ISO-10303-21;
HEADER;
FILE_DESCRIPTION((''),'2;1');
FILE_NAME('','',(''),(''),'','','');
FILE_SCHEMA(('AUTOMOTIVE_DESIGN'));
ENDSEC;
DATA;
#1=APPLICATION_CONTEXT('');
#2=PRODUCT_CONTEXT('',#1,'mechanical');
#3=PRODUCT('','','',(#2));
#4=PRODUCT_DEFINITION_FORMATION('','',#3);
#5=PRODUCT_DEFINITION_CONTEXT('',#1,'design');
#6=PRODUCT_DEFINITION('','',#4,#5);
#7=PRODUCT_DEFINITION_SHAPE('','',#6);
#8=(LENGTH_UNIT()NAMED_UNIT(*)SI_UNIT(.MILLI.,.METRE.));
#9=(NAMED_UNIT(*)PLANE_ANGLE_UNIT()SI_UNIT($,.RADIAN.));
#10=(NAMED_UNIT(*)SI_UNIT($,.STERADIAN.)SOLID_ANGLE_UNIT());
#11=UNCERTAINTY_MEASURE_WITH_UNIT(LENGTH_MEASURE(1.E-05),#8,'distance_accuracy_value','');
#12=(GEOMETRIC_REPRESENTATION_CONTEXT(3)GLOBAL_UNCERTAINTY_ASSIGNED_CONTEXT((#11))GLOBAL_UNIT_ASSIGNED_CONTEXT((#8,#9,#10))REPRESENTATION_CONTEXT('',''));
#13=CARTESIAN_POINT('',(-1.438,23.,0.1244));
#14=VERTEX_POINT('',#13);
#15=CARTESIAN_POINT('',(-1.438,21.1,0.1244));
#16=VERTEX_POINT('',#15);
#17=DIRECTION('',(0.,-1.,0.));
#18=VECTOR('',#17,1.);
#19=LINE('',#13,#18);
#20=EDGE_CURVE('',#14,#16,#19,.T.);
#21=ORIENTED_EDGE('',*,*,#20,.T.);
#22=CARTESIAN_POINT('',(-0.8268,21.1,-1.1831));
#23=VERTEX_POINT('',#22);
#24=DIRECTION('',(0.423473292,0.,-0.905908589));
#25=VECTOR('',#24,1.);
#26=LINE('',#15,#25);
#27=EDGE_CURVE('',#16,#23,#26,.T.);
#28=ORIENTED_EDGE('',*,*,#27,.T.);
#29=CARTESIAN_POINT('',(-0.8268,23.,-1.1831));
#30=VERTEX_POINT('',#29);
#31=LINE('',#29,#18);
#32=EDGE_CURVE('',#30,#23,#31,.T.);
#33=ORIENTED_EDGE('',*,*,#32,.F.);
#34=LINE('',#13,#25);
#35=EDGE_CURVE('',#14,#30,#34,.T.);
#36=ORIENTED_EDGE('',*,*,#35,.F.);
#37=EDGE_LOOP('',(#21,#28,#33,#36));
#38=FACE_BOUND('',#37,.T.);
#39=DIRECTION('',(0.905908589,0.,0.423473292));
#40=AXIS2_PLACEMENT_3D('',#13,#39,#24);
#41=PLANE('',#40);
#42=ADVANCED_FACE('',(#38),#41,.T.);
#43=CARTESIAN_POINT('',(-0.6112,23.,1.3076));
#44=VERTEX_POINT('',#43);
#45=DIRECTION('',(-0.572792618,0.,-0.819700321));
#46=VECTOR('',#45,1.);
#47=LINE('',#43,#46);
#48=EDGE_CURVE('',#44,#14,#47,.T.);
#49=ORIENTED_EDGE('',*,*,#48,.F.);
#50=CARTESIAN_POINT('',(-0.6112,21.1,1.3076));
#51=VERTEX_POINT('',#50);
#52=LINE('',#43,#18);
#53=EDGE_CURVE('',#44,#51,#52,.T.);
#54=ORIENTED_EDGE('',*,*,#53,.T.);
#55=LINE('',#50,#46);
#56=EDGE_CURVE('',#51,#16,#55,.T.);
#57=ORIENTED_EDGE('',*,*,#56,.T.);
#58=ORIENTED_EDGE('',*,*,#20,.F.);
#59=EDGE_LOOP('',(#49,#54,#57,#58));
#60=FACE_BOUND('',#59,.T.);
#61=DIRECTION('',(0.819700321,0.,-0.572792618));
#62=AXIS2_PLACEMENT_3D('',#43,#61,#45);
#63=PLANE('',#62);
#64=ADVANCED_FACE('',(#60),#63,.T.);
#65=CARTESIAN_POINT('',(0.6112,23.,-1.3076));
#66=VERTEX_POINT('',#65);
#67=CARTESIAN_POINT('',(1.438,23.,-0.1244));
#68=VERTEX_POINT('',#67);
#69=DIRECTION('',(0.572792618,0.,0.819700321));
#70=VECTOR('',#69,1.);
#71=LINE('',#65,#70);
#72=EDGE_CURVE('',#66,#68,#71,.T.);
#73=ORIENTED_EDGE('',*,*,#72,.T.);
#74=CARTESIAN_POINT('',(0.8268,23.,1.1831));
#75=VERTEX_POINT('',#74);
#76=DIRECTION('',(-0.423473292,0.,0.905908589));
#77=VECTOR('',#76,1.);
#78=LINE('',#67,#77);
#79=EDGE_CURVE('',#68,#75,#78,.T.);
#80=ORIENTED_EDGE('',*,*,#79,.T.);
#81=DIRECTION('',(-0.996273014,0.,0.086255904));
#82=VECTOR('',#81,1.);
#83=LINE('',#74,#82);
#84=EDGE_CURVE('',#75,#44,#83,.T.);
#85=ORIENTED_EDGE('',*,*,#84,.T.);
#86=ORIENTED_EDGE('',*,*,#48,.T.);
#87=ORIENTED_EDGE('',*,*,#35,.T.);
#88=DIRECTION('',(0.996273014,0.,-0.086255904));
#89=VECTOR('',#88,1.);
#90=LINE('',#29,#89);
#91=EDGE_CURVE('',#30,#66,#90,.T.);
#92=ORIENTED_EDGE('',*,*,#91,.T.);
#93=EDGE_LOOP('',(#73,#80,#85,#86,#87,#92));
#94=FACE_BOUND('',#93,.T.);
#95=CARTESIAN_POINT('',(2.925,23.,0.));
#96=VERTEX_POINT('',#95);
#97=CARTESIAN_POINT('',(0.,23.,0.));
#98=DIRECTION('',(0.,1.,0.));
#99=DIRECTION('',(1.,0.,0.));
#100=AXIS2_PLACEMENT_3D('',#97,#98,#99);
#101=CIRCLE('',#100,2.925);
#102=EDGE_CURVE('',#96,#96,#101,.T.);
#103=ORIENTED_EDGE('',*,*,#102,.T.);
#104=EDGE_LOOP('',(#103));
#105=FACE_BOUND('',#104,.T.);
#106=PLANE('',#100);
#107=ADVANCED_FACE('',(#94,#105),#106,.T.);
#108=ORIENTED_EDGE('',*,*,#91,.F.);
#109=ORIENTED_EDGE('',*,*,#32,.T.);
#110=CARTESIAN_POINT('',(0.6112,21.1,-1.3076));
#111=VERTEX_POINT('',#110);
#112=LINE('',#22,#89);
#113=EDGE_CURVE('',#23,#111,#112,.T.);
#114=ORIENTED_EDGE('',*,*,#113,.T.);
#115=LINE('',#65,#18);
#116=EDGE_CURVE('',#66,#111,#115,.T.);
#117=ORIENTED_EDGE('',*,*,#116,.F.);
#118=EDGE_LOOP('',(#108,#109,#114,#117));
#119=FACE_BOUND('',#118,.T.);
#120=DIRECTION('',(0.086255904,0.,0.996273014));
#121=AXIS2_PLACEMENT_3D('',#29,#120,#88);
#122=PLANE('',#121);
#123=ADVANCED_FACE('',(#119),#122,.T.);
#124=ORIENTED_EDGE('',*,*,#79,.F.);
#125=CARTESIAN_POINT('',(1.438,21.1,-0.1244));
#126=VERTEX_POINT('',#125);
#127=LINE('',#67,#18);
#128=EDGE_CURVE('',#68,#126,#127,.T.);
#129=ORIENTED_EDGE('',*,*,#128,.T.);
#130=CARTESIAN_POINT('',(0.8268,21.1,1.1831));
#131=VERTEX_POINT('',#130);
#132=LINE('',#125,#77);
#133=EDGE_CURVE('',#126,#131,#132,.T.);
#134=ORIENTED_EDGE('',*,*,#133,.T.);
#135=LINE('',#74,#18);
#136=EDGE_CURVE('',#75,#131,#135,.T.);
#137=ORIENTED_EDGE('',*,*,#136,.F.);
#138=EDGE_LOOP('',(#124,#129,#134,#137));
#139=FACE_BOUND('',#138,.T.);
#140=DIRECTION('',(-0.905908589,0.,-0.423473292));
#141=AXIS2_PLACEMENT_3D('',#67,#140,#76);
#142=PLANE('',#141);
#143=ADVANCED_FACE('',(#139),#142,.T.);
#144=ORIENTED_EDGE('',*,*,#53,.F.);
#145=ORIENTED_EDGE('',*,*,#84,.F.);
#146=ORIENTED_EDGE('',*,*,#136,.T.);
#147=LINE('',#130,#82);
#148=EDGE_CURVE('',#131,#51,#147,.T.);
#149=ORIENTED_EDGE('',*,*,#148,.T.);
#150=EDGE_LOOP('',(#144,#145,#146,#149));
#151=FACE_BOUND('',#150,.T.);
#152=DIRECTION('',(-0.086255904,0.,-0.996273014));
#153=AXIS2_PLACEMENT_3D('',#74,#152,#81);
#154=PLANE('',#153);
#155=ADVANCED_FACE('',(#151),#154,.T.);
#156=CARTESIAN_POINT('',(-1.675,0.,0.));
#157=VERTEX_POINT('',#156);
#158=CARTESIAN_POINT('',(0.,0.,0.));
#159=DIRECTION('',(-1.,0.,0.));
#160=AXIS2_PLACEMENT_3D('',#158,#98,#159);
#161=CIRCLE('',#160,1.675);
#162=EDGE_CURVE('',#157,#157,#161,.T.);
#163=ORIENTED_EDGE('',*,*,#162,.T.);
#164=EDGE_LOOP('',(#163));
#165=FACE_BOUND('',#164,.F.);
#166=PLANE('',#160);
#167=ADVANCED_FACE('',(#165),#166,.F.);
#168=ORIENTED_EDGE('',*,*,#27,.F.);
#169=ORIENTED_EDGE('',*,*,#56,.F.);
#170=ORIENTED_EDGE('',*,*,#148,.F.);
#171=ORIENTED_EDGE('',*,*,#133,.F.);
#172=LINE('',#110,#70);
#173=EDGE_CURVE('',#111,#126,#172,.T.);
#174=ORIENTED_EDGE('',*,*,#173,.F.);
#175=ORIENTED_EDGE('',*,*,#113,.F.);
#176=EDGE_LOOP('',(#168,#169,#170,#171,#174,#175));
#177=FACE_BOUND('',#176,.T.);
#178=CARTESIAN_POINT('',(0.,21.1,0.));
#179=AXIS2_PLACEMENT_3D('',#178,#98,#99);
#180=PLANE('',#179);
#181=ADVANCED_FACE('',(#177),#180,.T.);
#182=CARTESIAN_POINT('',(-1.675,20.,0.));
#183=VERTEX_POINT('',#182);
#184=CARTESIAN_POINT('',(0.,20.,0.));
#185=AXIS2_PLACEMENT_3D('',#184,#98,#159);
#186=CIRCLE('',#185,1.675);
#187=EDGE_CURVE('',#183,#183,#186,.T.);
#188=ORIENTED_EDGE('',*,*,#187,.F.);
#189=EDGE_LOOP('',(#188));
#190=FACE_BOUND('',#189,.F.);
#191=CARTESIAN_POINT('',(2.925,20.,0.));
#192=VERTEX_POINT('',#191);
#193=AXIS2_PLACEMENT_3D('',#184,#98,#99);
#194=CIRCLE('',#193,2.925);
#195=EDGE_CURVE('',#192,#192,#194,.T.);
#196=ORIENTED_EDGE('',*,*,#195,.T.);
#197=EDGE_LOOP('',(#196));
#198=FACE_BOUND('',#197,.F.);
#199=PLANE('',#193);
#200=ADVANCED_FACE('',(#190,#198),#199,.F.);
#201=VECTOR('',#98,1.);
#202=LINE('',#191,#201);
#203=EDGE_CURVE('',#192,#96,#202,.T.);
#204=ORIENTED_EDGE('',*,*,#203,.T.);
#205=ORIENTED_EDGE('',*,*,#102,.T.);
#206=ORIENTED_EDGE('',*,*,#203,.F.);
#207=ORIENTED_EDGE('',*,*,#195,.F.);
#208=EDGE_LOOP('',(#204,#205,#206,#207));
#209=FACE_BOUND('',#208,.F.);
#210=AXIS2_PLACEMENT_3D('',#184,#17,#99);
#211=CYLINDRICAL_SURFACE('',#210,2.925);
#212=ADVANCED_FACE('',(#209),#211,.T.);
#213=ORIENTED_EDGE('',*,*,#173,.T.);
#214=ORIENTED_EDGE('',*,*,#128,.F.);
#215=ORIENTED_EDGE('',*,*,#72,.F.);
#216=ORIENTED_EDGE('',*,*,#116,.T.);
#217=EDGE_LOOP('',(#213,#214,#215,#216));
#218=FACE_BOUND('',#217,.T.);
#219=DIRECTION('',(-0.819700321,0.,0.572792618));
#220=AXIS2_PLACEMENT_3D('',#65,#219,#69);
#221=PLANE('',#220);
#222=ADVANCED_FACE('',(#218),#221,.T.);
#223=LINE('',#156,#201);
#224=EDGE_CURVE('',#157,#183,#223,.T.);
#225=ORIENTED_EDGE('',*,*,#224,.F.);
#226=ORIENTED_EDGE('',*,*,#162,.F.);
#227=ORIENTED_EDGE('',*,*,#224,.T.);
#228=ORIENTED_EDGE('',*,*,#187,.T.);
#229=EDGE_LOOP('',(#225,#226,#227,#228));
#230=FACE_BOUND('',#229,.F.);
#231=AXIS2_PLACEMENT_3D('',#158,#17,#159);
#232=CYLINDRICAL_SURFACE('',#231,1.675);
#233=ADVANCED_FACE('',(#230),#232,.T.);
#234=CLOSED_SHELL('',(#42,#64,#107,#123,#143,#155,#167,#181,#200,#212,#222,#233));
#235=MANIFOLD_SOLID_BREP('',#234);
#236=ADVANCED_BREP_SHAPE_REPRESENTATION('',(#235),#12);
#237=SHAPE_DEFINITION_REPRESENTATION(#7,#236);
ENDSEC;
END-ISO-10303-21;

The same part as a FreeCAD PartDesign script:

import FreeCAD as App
import Part
import Sketcher

V = App.Vector
Q = App.Units.Quantity

doc = App.newDocument("Part")
body = doc.addObject("PartDesign::Body", "Body")

# Sketch on XZ plane
sketch1 = body.newObject("Sketcher::SketchObject", "Sketch")
sketch1.AttachmentSupport = (doc.getObject("XZ_Plane"), [""])
sketch1.MapMode = "FlatFace"
sketch1.addGeometry(Part.Circle(V(0, 0, 0), V(0, 0, 1), 1.7), False)
sketch1.addConstraint([
    Sketcher.Constraint("Coincident", 0, 3, -1, 1),
    Sketcher.Constraint("Diameter", 0, Q("3.35 mm")),
])
pad1 = body.newObject("PartDesign::Pad", "Pad")
pad1.Profile = sketch1
pad1.Length = 20
pad1.Reversed = True

# Sketch on XZ plane
sketch2 = body.newObject("Sketcher::SketchObject", "Sketch001")
sketch2.AttachmentSupport = (doc.getObject("XZ_Plane"), [""])
sketch2.MapMode = "FlatFace"
sketch2.AttachmentOffset = App.Placement(V(0, 0, -20), App.Rotation())
sketch2.addGeometry(Part.Circle(V(0, 0, 0), V(0, 0, 1), 2.9), False)
sketch2.addConstraint([
    Sketcher.Constraint("Coincident", 0, 3, -1, 1),
    Sketcher.Constraint("Diameter", 0, Q("5.85 mm")),
])
pad2 = body.newObject("PartDesign::Pad", "Pad001")
pad2.Profile = sketch2
pad2.Length = 3
pad2.Reversed = True

# Sketch on XZ plane
sketch3 = body.newObject("Sketcher::SketchObject", "Sketch002")
sketch3.AttachmentSupport = (doc.getObject("XZ_Plane"), [""])
sketch3.MapMode = "FlatFace"
sketch3.AttachmentOffset = App.Placement(V(0, 0, -23), App.Rotation())
sketch3.addGeometry([
    Part.LineSegment(V(0.6112, -1.3076, 0), V(-0.8268, -1.1831, 0)),  # 0
    Part.LineSegment(V(-0.8268, -1.1831, 0), V(-1.438, 0.1244, 0)),  # 1
    Part.LineSegment(V(-1.438, 0.1244, 0), V(-0.6112, 1.3076, 0)),  # 2
    Part.LineSegment(V(-0.6112, 1.3076, 0), V(0.8268, 1.1831, 0)),  # 3
    Part.LineSegment(V(0.8268, 1.1831, 0), V(1.438, -0.1244, 0)),  # 4
    Part.LineSegment(V(1.438, -0.1244, 0), V(0.6112, -1.3076, 0)),  # 5
], False)
sketch3.addConstraint([
    Sketcher.Constraint("Coincident", 0, 2, 1, 1),
    Sketcher.Constraint("Coincident", 1, 2, 2, 1),
    Sketcher.Constraint("Coincident", 2, 2, 3, 1),
    Sketcher.Constraint("Coincident", 3, 2, 4, 1),
    Sketcher.Constraint("Coincident", 4, 2, 5, 1),
    Sketcher.Constraint("Coincident", 5, 2, 0, 1),
    Sketcher.Constraint("DistanceY", 0, 2, -1, 1, Q("1.183 mm")),
    Sketcher.Constraint("DistanceX", 1, 2, -1, 1, Q("1.438 mm")),
    Sketcher.Constraint("DistanceY", -1, 1, 3, 2, Q("1.183 mm")),
    Sketcher.Constraint("DistanceX", -1, 1, 4, 2, Q("1.438 mm")),
    Sketcher.Constraint("DistanceX", 2, 2, 3, 2, Q("1.438 mm")),
    Sketcher.Constraint("DistanceY", 4, 2, 2, 2, Q("1.432 mm")),
    Sketcher.Constraint("DistanceX", 0, 2, 5, 2, Q("1.438 mm")),
    Sketcher.Constraint("DistanceY", 5, 2, 1, 2, Q("1.432 mm")),
    Sketcher.Constraint("Distance", 0, Q("1.4434 mm")),
    Sketcher.Constraint("Distance", 1, Q("1.4433 mm")),
    Sketcher.Constraint("Distance", 2, Q("1.4435 mm")),
    Sketcher.Constraint("Distance", 3, Q("1.4434 mm")),
])
pocket1 = body.newObject("PartDesign::Pocket", "Pocket")
pocket1.Profile = sketch3
pocket1.Length = 1.9
pocket1.Reversed = True

doc.recompute()
